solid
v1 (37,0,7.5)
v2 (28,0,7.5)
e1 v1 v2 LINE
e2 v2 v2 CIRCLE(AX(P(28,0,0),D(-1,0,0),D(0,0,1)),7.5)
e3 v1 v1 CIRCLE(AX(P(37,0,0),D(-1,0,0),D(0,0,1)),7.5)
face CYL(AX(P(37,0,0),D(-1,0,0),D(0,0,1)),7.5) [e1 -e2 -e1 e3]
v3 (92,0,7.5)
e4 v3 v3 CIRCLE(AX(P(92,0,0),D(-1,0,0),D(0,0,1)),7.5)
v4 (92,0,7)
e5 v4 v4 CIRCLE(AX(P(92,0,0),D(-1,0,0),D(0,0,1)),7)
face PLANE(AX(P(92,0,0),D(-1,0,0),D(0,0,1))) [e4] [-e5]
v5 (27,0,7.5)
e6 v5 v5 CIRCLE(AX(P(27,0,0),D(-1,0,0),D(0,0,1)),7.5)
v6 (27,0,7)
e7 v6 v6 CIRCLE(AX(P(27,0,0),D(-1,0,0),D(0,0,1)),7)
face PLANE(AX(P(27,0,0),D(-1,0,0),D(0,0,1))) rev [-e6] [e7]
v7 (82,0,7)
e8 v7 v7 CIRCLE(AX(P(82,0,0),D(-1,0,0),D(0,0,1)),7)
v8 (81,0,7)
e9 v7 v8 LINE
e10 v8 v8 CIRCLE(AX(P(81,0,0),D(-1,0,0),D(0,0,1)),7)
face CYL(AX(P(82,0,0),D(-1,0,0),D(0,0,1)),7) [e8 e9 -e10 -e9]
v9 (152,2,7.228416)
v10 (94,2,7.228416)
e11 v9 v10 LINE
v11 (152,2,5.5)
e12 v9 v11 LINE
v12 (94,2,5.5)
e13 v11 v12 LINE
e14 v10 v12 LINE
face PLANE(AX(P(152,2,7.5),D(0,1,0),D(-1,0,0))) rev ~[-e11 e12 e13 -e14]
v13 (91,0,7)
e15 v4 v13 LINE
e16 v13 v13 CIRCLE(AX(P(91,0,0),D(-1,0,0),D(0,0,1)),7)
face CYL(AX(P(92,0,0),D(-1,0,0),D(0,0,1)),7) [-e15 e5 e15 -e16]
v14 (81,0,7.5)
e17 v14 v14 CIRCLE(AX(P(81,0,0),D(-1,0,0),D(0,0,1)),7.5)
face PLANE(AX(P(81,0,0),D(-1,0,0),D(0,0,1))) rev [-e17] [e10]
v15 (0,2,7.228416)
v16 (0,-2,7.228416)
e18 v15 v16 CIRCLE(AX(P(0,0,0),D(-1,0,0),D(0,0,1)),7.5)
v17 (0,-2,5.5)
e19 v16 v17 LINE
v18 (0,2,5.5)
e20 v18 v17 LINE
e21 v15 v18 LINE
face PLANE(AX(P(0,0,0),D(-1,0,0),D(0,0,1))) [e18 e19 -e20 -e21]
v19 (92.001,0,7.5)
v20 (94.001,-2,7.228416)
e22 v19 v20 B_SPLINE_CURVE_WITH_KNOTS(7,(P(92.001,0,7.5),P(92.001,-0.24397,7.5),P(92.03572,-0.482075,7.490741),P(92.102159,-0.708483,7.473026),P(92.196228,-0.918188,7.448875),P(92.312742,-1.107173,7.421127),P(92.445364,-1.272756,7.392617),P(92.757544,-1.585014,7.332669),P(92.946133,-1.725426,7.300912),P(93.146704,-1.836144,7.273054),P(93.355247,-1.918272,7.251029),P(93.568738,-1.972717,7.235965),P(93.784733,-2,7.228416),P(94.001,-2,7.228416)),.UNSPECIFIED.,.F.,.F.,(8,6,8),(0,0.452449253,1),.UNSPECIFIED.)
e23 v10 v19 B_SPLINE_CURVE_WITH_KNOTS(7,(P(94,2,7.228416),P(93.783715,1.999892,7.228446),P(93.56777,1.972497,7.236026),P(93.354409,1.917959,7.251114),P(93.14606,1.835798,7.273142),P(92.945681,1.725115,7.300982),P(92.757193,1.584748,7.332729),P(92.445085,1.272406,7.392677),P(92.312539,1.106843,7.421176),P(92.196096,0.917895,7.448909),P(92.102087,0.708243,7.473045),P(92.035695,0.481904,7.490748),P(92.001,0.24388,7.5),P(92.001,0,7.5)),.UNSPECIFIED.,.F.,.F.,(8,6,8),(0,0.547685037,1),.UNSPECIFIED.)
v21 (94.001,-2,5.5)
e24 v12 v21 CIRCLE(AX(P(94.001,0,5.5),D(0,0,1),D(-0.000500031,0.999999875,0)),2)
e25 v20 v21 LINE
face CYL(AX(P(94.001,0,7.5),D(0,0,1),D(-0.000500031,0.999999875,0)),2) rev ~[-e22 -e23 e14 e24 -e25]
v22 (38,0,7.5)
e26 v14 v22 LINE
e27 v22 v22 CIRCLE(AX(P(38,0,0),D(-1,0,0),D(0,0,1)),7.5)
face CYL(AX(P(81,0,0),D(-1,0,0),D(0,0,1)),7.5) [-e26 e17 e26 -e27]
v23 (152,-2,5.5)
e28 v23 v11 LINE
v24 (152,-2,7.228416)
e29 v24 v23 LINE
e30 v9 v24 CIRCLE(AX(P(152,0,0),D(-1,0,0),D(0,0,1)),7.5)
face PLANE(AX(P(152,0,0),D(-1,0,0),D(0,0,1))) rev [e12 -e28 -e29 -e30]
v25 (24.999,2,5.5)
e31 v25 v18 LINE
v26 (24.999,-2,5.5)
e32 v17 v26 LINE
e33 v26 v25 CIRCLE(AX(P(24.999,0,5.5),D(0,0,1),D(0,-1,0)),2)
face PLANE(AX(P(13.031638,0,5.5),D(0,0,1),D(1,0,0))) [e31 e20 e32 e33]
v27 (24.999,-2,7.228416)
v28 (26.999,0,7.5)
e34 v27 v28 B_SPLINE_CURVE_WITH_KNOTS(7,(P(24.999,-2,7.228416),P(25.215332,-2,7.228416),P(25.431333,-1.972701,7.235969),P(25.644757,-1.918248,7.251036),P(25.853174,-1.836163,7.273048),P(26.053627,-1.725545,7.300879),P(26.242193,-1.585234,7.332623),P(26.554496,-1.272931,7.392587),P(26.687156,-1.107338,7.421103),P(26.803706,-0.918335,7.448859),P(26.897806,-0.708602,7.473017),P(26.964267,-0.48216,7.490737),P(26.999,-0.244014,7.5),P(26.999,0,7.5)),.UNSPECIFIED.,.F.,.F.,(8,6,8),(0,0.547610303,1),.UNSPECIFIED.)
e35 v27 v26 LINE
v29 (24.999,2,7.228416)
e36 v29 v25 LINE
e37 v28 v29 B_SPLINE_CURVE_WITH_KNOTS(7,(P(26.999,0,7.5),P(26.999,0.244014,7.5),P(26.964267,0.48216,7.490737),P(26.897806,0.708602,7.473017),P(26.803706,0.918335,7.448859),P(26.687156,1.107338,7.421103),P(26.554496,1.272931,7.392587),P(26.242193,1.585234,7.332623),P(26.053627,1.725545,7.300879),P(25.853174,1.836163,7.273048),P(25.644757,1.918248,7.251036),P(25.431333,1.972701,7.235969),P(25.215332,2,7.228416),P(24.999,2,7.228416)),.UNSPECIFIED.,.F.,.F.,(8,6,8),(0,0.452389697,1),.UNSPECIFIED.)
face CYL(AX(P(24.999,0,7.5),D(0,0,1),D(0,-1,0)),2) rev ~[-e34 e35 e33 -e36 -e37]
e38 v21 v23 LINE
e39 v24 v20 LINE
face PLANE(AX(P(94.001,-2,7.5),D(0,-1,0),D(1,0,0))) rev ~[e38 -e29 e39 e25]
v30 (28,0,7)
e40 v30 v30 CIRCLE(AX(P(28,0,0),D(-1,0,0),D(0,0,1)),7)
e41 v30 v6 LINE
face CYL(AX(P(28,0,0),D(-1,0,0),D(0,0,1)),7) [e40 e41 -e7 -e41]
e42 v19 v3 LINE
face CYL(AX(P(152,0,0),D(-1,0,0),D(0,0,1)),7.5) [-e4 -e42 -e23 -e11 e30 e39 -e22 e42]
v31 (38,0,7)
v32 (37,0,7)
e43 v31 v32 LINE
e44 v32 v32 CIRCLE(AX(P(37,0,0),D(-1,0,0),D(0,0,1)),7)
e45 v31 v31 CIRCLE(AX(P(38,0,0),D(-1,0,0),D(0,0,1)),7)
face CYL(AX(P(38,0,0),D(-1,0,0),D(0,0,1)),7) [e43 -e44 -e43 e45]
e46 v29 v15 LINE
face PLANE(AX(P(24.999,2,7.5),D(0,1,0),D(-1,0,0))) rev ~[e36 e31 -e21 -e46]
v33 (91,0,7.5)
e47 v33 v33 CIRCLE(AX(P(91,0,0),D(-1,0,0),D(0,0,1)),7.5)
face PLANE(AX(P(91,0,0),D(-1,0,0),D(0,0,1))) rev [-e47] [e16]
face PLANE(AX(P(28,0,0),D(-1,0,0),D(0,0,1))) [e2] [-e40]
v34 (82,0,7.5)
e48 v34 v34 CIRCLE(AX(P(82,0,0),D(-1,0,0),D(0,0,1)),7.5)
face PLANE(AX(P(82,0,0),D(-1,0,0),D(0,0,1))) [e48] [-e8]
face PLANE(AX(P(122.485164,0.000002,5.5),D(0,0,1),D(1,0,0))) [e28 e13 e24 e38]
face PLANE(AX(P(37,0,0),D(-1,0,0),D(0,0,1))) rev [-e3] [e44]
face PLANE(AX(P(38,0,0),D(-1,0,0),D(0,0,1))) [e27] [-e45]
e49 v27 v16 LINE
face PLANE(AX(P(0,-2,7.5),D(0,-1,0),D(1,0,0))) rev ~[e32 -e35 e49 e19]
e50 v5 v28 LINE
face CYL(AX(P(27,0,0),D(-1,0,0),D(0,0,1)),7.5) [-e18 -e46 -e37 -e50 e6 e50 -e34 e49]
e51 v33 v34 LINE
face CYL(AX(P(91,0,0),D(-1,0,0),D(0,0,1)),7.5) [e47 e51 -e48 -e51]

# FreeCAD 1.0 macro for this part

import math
import FreeCAD as App
import Part
import Sketcher

V = App.Vector

doc = App.newDocument("Part")
body = doc.addObject("PartDesign::Body", "Body")

# Sketch on XZ plane
sketch1 = doc.addObject("Sketcher::SketchObject", "Sketch")
body.addObject(sketch1)
sketch1.AttachmentSupport = (doc.XZ_Plane, [""])
sketch1.MapMode = "FlatFace"
sketch1.addGeometry(Part.LineSegment(V(0, 7.5, 0), V(0, 0, 0)), False)
sketch1.addGeometry(Part.LineSegment(V(0, 0, 0), V(152, 0, 0)), False)
sketch1.addGeometry(Part.LineSegment(V(152, 0, 0), V(152, 7.5, 0)), False)
sketch1.addGeometry(Part.LineSegment(V(152, 7.5, 0), V(92, 7.5, 0)), False)
sketch1.addGeometry(Part.LineSegment(V(92, 7.5, 0), V(92, 7, 0)), False)
sketch1.addGeometry(Part.LineSegment(V(92, 7, 0), V(91, 7, 0)), False)
sketch1.addGeometry(Part.LineSegment(V(91, 7, 0), V(91, 7.5, 0)), False)
sketch1.addGeometry(Part.LineSegment(V(91, 7.5, 0), V(82, 7.5, 0)), False)
sketch1.addGeometry(Part.LineSegment(V(82, 7.5, 0), V(82, 7, 0)), False)
sketch1.addGeometry(Part.LineSegment(V(82, 7, 0), V(81, 7, 0)), False)
sketch1.addGeometry(Part.LineSegment(V(81, 7, 0), V(81, 7.5, 0)), False)
sketch1.addGeometry(Part.LineSegment(V(81, 7.5, 0), V(38, 7.5, 0)), False)
sketch1.addGeometry(Part.LineSegment(V(38, 7.5, 0), V(38, 7, 0)), False)
sketch1.addGeometry(Part.LineSegment(V(38, 7, 0), V(37, 7, 0)), False)
sketch1.addGeometry(Part.LineSegment(V(37, 7, 0), V(37, 7.5, 0)), False)
sketch1.addGeometry(Part.LineSegment(V(37, 7.5, 0), V(28, 7.5, 0)), False)
sketch1.addGeometry(Part.LineSegment(V(28, 7.5, 0), V(28, 7, 0)), False)
sketch1.addGeometry(Part.LineSegment(V(28, 7, 0), V(27, 7, 0)), False)
sketch1.addGeometry(Part.LineSegment(V(27, 7, 0), V(27, 7.5, 0)), False)
sketch1.addGeometry(Part.LineSegment(V(27, 7.5, 0), V(0, 7.5, 0)), False)
sketch1.addConstraint(Sketcher.Constraint("Coincident", 0, 2, 1, 1))
sketch1.addConstraint(Sketcher.Constraint("Coincident", 1, 2, 2, 1))
sketch1.addConstraint(Sketcher.Constraint("Coincident", 2, 2, 3, 1))
sketch1.addConstraint(Sketcher.Constraint("Coincident", 3, 2, 4, 1))
sketch1.addConstraint(Sketcher.Constraint("Coincident", 4, 2, 5, 1))
sketch1.addConstraint(Sketcher.Constraint("Coincident", 5, 2, 6, 1))
sketch1.addConstraint(Sketcher.Constraint("Coincident", 6, 2, 7, 1))
sketch1.addConstraint(Sketcher.Constraint("Coincident", 7, 2, 8, 1))
sketch1.addConstraint(Sketcher.Constraint("Coincident", 8, 2, 9, 1))
sketch1.addConstraint(Sketcher.Constraint("Coincident", 9, 2, 10, 1))
sketch1.addConstraint(Sketcher.Constraint("Coincident", 10, 2, 11, 1))
sketch1.addConstraint(Sketcher.Constraint("Coincident", 11, 2, 12, 1))
sketch1.addConstraint(Sketcher.Constraint("Coincident", 12, 2, 13, 1))
sketch1.addConstraint(Sketcher.Constraint("Coincident", 13, 2, 14, 1))
sketch1.addConstraint(Sketcher.Constraint("Coincident", 14, 2, 15, 1))
sketch1.addConstraint(Sketcher.Constraint("Coincident", 15, 2, 16, 1))
sketch1.addConstraint(Sketcher.Constraint("Coincident", 16, 2, 17, 1))
sketch1.addConstraint(Sketcher.Constraint("Coincident", 17, 2, 18, 1))
sketch1.addConstraint(Sketcher.Constraint("Coincident", 18, 2, 19, 1))
sketch1.addConstraint(Sketcher.Constraint("Coincident", 19, 2, 0, 1))
sketch1.addConstraint(Sketcher.Constraint("Vertical", 0))
sketch1.addConstraint(Sketcher.Constraint("Horizontal", 1))
sketch1.addConstraint(Sketcher.Constraint("Vertical", 2))
sketch1.addConstraint(Sketcher.Constraint("Horizontal", 3))
sketch1.addConstraint(Sketcher.Constraint("Vertical", 4))
sketch1.addConstraint(Sketcher.Constraint("Horizontal", 5))
sketch1.addConstraint(Sketcher.Constraint("Vertical", 6))
sketch1.addConstraint(Sketcher.Constraint("Horizontal", 7))
sketch1.addConstraint(Sketcher.Constraint("Vertical", 8))
sketch1.addConstraint(Sketcher.Constraint("Horizontal", 9))
sketch1.addConstraint(Sketcher.Constraint("Vertical", 10))
sketch1.addConstraint(Sketcher.Constraint("Horizontal", 11))
sketch1.addConstraint(Sketcher.Constraint("Vertical", 12))
sketch1.addConstraint(Sketcher.Constraint("Horizontal", 13))
sketch1.addConstraint(Sketcher.Constraint("Vertical", 14))
sketch1.addConstraint(Sketcher.Constraint("Horizontal", 15))
sketch1.addConstraint(Sketcher.Constraint("Vertical", 16))
sketch1.addConstraint(Sketcher.Constraint("Horizontal", 17))
sketch1.addConstraint(Sketcher.Constraint("Vertical", 18))
sketch1.addConstraint(Sketcher.Constraint("Horizontal", 19))
sketch1.addConstraint(Sketcher.Constraint("Coincident", 0, 2, -1, 1))
sketch1.addConstraint(Sketcher.Constraint("Horizontal", 3, 2, 6, 2))
sketch1.addConstraint(Sketcher.Constraint("Horizontal", 5, 2, 8, 2))
sketch1.addConstraint(Sketcher.Constraint("Horizontal", 7, 2, 10, 2))
sketch1.addConstraint(Sketcher.Constraint("Horizontal", 9, 2, 12, 2))
sketch1.addConstraint(Sketcher.Constraint("Horizontal", 11, 2, 14, 2))
sketch1.addConstraint(Sketcher.Constraint("Horizontal", 13, 2, 16, 2))
sketch1.addConstraint(Sketcher.Constraint("Horizontal", 15, 2, 18, 2))
sketch1.addConstraint(Sketcher.Constraint("Equal", 5, 9))
sketch1.addConstraint(Sketcher.Constraint("Equal", 9, 13))
sketch1.addConstraint(Sketcher.Constraint("Equal", 7, 15))
sketch1.addConstraint(Sketcher.Constraint("Equal", 13, 17))
sketch1.addConstraint(Sketcher.Constraint("DistanceX", 1, 1, 1, 2, 152.0))
sketch1.addConstraint(Sketcher.Constraint("DistanceX", 3, 2, 3, 1, 60.0))
sketch1.addConstraint(Sketcher.Constraint("DistanceX", 5, 2, 5, 1, 1.0))
sketch1.addConstraint(Sketcher.Constraint("DistanceX", 7, 2, 7, 1, 9.0))
sketch1.addConstraint(Sketcher.Constraint("DistanceX", 11, 2, 11, 1, 43.0))
sketch1.addConstraint(Sketcher.Constraint("DistanceY", 0, 2, 0, 1, 7.5))
sketch1.addConstraint(Sketcher.Constraint("DistanceY", 4, 2, 4, 1, 0.5))
revolution = doc.addObject("PartDesign::Revolution", "Revolution")
body.addObject(revolution)
revolution.Profile = sketch1
revolution.ReferenceAxis = (sketch1, ["H_Axis"])
revolution.Angle = 360

# Sketch on XY plane
sketch2 = doc.addObject("Sketcher::SketchObject", "Sketch001")
body.addObject(sketch2)
sketch2.AttachmentSupport = (doc.XY_Plane, [""])
sketch2.MapMode = "FlatFace"
sketch2.AttachmentOffset = App.Placement(V(0, 0, 7.5), App.Rotation())
sketch2.addGeometry(Part.LineSegment(V(0, 2, 0), V(0, -2, 0)), False)
sketch2.addGeometry(Part.LineSegment(V(0, -2, 0), V(25, -2, 0)), False)
sketch2.addGeometry(Part.ArcOfCircle(Part.Circle(V(25, 0, 0), V(0, 0, 1), 2), math.radians(-90), math.radians(90)), False)
sketch2.addGeometry(Part.LineSegment(V(25, 2, 0), V(0, 2, 0)), False)
sketch2.addGeometry(Part.LineSegment(V(152, -2, 0), V(152, 2, 0)), False)
sketch2.addGeometry(Part.LineSegment(V(152, 2, 0), V(94, 2, 0)), False)
sketch2.addGeometry(Part.ArcOfCircle(Part.Circle(V(94, 0, 0), V(0, 0, 1), 2), math.radians(90), math.radians(270)), False)
sketch2.addGeometry(Part.LineSegment(V(94, -2, 0), V(152, -2, 0)), False)
sketch2.addConstraint(Sketcher.Constraint("Coincident", 0, 2, 1, 1))
sketch2.addConstraint(Sketcher.Constraint("Tangent", 1, 2, 2, 1))
sketch2.addConstraint(Sketcher.Constraint("Tangent", 2, 2, 3, 1))
sketch2.addConstraint(Sketcher.Constraint("Coincident", 3, 2, 0, 1))
sketch2.addConstraint(Sketcher.Constraint("Coincident", 4, 2, 5, 1))
sketch2.addConstraint(Sketcher.Constraint("Coincident", 5, 2, 6, 1))
sketch2.addConstraint(Sketcher.Constraint("Tangent", 6, 2, 7, 1))
sketch2.addConstraint(Sketcher.Constraint("Coincident", 7, 2, 4, 1))
sketch2.addConstraint(Sketcher.Constraint("Vertical", 0))
sketch2.addConstraint(Sketcher.Constraint("Horizontal", 1))
sketch2.addConstraint(Sketcher.Constraint("Horizontal", 3))
sketch2.addConstraint(Sketcher.Constraint("Vertical", 4))
sketch2.addConstraint(Sketcher.Constraint("Horizontal", 5))
sketch2.addConstraint(Sketcher.Constraint("Horizontal", 7))
sketch2.addConstraint(Sketcher.Constraint("Equal", 2, 6))
sketch2.addConstraint(Sketcher.Constraint("Symmetric", 0, 2, 3, 2, -1, 1))
sketch2.addConstraint(Sketcher.Constraint("PointOnObject", 6, 3, -1))
sketch2.addConstraint(Sketcher.Constraint("Radius", 2, 2.0))
sketch2.addConstraint(Sketcher.Constraint("DistanceX", 5, 2, 5, 1, 58.0))
sketch2.addConstraint(Sketcher.Constraint("DistanceX", -1, 1, 4, 2, 152.0))
sketch2.addConstraint(Sketcher.Constraint("DistanceX", 1, 1, 1, 2, 24.999))
sketch2.addConstraint(Sketcher.Constraint("DistanceX", 7, 1, 7, 2, 57.999))
pocket1 = doc.addObject("PartDesign::Pocket", "Pocket")
body.addObject(pocket1)
pocket1.Profile = sketch2
pocket1.Length = 2

doc.recompute()
